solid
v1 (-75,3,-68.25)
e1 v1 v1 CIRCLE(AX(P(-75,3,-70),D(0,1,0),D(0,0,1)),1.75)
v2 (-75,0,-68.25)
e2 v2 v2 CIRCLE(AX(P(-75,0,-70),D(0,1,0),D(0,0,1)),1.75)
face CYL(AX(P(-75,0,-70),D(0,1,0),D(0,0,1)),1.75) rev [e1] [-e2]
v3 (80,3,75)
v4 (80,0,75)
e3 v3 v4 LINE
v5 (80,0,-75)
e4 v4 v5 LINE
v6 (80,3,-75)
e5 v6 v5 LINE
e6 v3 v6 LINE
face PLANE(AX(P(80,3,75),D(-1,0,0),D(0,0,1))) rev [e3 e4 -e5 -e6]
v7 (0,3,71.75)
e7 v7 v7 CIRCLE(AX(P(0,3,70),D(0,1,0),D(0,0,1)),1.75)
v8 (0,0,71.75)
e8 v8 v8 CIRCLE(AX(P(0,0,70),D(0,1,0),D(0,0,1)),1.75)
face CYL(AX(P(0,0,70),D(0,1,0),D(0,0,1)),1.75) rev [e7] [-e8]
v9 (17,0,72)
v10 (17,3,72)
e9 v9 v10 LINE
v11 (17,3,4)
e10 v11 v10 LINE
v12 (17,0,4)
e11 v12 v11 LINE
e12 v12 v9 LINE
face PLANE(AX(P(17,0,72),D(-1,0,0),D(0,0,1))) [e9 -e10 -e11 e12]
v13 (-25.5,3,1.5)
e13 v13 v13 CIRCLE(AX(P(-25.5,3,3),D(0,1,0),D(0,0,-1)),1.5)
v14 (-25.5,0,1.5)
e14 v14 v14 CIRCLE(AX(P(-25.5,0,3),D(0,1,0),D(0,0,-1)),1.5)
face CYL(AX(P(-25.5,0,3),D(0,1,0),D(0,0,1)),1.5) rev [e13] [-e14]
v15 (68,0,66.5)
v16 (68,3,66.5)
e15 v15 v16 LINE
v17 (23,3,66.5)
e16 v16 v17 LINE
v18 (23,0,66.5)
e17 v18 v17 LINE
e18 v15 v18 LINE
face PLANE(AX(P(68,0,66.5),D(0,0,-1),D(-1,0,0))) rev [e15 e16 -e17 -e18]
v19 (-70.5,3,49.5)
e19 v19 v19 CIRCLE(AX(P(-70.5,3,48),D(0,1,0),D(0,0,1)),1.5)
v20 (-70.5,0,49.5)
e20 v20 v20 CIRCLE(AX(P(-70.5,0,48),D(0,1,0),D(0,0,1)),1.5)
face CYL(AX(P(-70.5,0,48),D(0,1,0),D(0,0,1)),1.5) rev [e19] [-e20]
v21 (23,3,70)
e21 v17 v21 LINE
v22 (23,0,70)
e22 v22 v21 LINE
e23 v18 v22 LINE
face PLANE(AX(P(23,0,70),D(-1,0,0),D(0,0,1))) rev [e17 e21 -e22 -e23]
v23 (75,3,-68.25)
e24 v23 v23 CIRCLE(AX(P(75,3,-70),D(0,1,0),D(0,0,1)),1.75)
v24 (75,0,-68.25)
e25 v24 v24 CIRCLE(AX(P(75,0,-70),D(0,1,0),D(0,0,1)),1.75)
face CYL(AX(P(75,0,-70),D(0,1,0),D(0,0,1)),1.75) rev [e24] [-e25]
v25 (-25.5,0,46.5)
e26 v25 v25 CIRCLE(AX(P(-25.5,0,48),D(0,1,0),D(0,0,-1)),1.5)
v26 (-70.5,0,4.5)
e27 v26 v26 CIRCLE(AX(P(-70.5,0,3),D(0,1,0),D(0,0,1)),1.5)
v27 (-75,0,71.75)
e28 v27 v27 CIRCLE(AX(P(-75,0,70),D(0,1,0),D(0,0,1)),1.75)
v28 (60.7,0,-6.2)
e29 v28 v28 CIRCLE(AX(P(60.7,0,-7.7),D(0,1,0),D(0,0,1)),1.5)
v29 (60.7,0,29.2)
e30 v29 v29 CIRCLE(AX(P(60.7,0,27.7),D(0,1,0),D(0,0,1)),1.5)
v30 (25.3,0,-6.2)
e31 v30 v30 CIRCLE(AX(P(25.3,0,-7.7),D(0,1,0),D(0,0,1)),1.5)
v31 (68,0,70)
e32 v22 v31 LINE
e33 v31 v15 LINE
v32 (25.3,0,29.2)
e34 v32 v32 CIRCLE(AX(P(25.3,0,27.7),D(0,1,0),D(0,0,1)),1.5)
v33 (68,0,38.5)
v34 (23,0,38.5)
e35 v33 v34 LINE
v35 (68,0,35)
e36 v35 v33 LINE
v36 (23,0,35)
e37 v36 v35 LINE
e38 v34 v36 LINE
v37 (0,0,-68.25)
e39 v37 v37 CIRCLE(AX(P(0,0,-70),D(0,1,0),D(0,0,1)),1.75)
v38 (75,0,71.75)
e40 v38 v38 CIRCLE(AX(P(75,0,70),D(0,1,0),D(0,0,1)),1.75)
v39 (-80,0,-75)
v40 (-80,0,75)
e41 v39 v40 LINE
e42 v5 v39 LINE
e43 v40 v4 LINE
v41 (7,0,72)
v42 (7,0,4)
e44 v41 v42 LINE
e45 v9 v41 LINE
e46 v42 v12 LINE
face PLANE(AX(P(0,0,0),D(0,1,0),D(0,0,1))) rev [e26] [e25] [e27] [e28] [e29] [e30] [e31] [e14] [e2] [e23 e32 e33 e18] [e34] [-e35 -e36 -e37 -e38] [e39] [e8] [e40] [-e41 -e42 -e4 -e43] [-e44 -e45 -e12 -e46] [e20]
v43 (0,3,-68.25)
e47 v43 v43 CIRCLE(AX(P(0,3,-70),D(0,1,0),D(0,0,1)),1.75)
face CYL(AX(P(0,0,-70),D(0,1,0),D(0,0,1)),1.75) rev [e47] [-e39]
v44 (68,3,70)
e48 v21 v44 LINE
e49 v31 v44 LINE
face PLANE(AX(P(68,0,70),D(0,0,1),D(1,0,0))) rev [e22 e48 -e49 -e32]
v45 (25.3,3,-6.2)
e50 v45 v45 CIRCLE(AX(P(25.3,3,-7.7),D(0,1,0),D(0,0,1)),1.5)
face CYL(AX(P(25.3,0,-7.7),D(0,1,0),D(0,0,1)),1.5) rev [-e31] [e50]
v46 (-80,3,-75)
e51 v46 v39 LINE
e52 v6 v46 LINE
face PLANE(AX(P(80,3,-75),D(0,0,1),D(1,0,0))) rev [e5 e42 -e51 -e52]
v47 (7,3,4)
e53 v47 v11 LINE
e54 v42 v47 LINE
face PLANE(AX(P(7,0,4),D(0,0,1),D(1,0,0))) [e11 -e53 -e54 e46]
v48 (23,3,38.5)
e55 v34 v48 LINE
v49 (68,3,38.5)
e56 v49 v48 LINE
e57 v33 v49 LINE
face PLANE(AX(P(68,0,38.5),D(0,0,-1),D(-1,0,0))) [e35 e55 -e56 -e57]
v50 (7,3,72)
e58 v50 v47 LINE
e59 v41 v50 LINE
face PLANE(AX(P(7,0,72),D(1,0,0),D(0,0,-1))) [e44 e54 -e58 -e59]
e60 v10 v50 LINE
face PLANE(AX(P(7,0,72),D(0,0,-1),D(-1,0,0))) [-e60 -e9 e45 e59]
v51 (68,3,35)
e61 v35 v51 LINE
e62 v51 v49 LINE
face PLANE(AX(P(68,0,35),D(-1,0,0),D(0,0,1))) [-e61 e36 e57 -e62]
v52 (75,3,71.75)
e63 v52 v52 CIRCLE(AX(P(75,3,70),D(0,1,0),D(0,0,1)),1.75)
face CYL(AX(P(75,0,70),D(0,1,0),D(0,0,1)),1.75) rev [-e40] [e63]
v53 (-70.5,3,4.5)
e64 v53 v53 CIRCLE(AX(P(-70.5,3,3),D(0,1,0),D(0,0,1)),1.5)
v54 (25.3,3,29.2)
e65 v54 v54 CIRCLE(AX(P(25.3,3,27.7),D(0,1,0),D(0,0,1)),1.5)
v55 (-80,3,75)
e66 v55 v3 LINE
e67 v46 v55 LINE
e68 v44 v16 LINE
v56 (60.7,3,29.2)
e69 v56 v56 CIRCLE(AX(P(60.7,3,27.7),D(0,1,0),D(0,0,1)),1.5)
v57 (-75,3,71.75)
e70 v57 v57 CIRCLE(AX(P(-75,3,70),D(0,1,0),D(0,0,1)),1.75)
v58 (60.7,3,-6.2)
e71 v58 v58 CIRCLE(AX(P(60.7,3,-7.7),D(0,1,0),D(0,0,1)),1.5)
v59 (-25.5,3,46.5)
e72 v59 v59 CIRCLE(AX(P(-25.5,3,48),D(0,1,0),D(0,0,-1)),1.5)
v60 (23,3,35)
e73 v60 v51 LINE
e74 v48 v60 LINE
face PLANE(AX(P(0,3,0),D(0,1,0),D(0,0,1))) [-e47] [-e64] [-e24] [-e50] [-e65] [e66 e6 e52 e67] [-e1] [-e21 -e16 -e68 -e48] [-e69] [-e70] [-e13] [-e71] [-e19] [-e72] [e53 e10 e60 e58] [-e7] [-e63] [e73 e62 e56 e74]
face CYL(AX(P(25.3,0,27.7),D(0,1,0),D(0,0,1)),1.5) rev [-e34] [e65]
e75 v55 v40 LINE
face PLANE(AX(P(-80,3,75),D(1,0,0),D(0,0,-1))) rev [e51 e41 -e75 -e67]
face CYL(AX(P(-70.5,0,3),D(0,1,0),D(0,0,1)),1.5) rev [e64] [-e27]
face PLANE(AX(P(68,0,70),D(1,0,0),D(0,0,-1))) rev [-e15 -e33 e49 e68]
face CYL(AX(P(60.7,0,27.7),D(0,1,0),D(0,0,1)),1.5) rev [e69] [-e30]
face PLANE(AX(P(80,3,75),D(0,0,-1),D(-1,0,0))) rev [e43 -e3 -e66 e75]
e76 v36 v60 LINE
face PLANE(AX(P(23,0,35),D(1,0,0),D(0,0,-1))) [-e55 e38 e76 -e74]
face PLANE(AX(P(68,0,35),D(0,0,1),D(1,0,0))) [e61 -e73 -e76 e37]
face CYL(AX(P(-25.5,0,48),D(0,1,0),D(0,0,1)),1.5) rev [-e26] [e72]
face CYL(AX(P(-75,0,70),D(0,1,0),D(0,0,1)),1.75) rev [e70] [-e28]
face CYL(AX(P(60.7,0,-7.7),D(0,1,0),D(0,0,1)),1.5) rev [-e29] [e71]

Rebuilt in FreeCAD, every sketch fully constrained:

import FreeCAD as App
import Part
import Sketcher
from FreeCAD import Vector
Q = App.Units.Quantity


def add_polygon(sketch, points):
    """Adds a closed chain of lines whose ends are joined by coincident constraints."""
    first, n = sketch.GeometryCount, len(points)
    for a, b in zip(points, points[1:] + points[:1]):
        sketch.addGeometry(Part.LineSegment(App.Vector(*a, 0), App.Vector(*b, 0)), False)
    for i in range(n):
        sketch.addConstraint(Sketcher.Constraint("Coincident", first + i, 2, first + (i + 1) % n, 1))

doc = App.newDocument("Part")
body = doc.addObject("PartDesign::Body", "Body")

sketch1 = body.newObject("Sketcher::SketchObject", "Sketch")
sketch1.AttachmentSupport = (doc.getObject("XZ_Plane"), [""])
sketch1.MapMode = "FlatFace"
add_polygon(sketch1, [(-80, -75), (-80, 75), (80, 75), (80, -75)])
sketch1.addConstraint(Sketcher.Constraint("Vertical", 0))
sketch1.addConstraint(Sketcher.Constraint("Horizontal", 1))
sketch1.addConstraint(Sketcher.Constraint("Vertical", 2))
sketch1.addConstraint(Sketcher.Constraint("Horizontal", 3))
sketch1.addConstraint(Sketcher.Constraint("Symmetric", 0, 2, 2, 2, -1, 1))
sketch1.addConstraint(Sketcher.Constraint("DistanceX", 1, 1, 1, 2, Q("160 mm")))
sketch1.addConstraint(Sketcher.Constraint("DistanceY", 0, 1, 0, 2, Q("150 mm")))
pad1 = body.newObject("PartDesign::Pad", "Pad")
pad1.Profile = sketch1
pad1.Length = 3
pad1.Reversed = True

sketch2 = body.newObject("Sketcher::SketchObject", "Sketch001")
sketch2.AttachmentSupport = (doc.getObject("XZ_Plane"), [""])
sketch2.MapMode = "FlatFace"
sketch2.AttachmentOffset = App.Placement(Vector(0, 0, -3), App.Rotation())
add_polygon(sketch2, [(-63, 4), (-63, 72), (-53, 72), (-53, 4)])
sketch2.addConstraint(Sketcher.Constraint("Vertical", 0))
sketch2.addConstraint(Sketcher.Constraint("Horizontal", 1))
sketch2.addConstraint(Sketcher.Constraint("Vertical", 2))
sketch2.addConstraint(Sketcher.Constraint("Horizontal", 3))
sketch2.addConstraint(Sketcher.Constraint("DistanceX", 1, 1, 1, 2, Q("10 mm")))
sketch2.addConstraint(Sketcher.Constraint("DistanceY", 0, 1, 0, 2, Q("68 mm")))
sketch2.addConstraint(Sketcher.Constraint("DistanceX", 0, 2, -1, 1, Q("63 mm")))
sketch2.addConstraint(Sketcher.Constraint("DistanceY", -1, 1, 0, 2, Q("72 mm")))
pocket1 = body.newObject("PartDesign::Pocket", "Pocket")
pocket1.Profile = sketch2
pocket1.Type = "ThroughAll"
pocket1.Reversed = True
doc.recompute()

datumplane = body.newObject("PartDesign::Plane", "DatumPlane")
datumplane.AttachmentSupport = (doc.getObject("YZ_Plane"), [""])
datumplane.MapMode = "FlatFace"
datumplane.AttachmentOffset = App.Placement(Vector(0, 0, -23), App.Rotation())
mirrored = body.newObject("PartDesign::Mirrored", "Mirrored")
mirrored.Originals = [pocket1]
mirrored.MirrorPlane = (datumplane, [""])
body.Tip = mirrored

sketch3 = body.newObject("Sketcher::SketchObject", "Sketch002")
sketch3.AttachmentSupport = (doc.getObject("XZ_Plane"), [""])
sketch3.MapMode = "FlatFace"
sketch3.AttachmentOffset = App.Placement(Vector(0, 0, -3), App.Rotation())
add_polygon(sketch3, [(23, 66.5), (23, 70), (68, 70), (68, 66.5)])
sketch3.addConstraint(Sketcher.Constraint("Vertical", 0))
sketch3.addConstraint(Sketcher.Constraint("Horizontal", 1))
sketch3.addConstraint(Sketcher.Constraint("Vertical", 2))
sketch3.addConstraint(Sketcher.Constraint("Horizontal", 3))
sketch3.addConstraint(Sketcher.Constraint("DistanceX", 1, 1, 1, 2, Q("45 mm")))
sketch3.addConstraint(Sketcher.Constraint("DistanceY", 0, 1, 0, 2, Q("3.5 mm")))
sketch3.addConstraint(Sketcher.Constraint("DistanceX", -1, 1, 0, 2, Q("23 mm")))
sketch3.addConstraint(Sketcher.Constraint("DistanceY", -1, 1, 0, 2, Q("70 mm")))
pocket2 = body.newObject("PartDesign::Pocket", "Pocket001")
pocket2.Profile = sketch3
pocket2.Type = "ThroughAll"
pocket2.Reversed = True
doc.recompute()

datumplane2 = body.newObject("PartDesign::Plane", "DatumPlane001")
datumplane2.AttachmentSupport = (doc.getObject("XY_Plane"), [""])
datumplane2.MapMode = "FlatFace"
datumplane2.AttachmentOffset = App.Placement(Vector(0, 0, 52.5), App.Rotation())
mirrored2 = body.newObject("PartDesign::Mirrored", "Mirrored001")
mirrored2.Originals = [pocket2]
mirrored2.MirrorPlane = (datumplane2, [""])
body.Tip = mirrored2

sketch4 = body.newObject("Sketcher::SketchObject", "Sketch003")
sketch4.AttachmentSupport = (doc.getObject("XZ_Plane"), [""])
sketch4.MapMode = "FlatFace"
sketch4.AttachmentOffset = App.Placement(Vector(0, 0, -3), App.Rotation())
sketch4.addGeometry(Part.Circle(Vector(-70.5, 3, 0), Vector(0, 0, 1), 1.5), False)
sketch4.addGeometry(Part.Circle(Vector(-70.5, 48, 0), Vector(0, 0, 1), 1.5), False)
sketch4.addGeometry(Part.Circle(Vector(-25.5, 48, 0), Vector(0, 0, 1), 1.5), False)
sketch4.addGeometry(Part.Circle(Vector(-25.5, 3, 0), Vector(0, 0, 1), 1.5), False)
sketch4.addConstraint(Sketcher.Constraint("Equal", 0, 1))
sketch4.addConstraint(Sketcher.Constraint("Equal", 1, 2))
sketch4.addConstraint(Sketcher.Constraint("Equal", 2, 3))
sketch4.addConstraint(Sketcher.Constraint("Horizontal", 1, 3, 2, 3))
sketch4.addConstraint(Sketcher.Constraint("Horizontal", 0, 3, 3, 3))
sketch4.addConstraint(Sketcher.Constraint("Vertical", 0, 3, 1, 3))
sketch4.addConstraint(Sketcher.Constraint("Vertical", 2, 3, 3, 3))
sketch4.addConstraint(Sketcher.Constraint("Diameter", 0, Q("3 mm")))
sketch4.addConstraint(Sketcher.Constraint("DistanceY", -1, 1, 0, 3, Q("3 mm")))
sketch4.addConstraint(Sketcher.Constraint("DistanceY", -1, 1, 1, 3, Q("48 mm")))
sketch4.addConstraint(Sketcher.Constraint("DistanceX", 1, 3, 2, 3, Q("45 mm")))
sketch4.addConstraint(Sketcher.Constraint("DistanceX", 0, 3, -1, 1, Q("70.5 mm")))
pocket3 = body.newObject("PartDesign::Pocket", "Pocket002")
pocket3.Profile = sketch4
pocket3.Type = "ThroughAll"
pocket3.Reversed = True

sketch5 = body.newObject("Sketcher::SketchObject", "Sketch004")
sketch5.AttachmentSupport = (doc.getObject("XZ_Plane"), [""])
sketch5.MapMode = "FlatFace"
sketch5.AttachmentOffset = App.Placement(Vector(0, 0, -3), App.Rotation())
sketch5.addGeometry(Part.Circle(Vector(60.7, 27.7, 0), Vector(0, 0, 1), 1.5), False)
sketch5.addGeometry(Part.Circle(Vector(25.3, 27.7, 0), Vector(0, 0, 1), 1.5), False)
sketch5.addGeometry(Part.Circle(Vector(25.3, -7.7, 0), Vector(0, 0, 1), 1.5), False)
sketch5.addGeometry(Part.Circle(Vector(60.7, -7.7, 0), Vector(0, 0, 1), 1.5), False)
sketch5.addConstraint(Sketcher.Constraint("Equal", 0, 1))
sketch5.addConstraint(Sketcher.Constraint("Equal", 1, 2))
sketch5.addConstraint(Sketcher.Constraint("Equal", 2, 3))
sketch5.addConstraint(Sketcher.Constraint("Horizontal", 0, 3, 1, 3))
sketch5.addConstraint(Sketcher.Constraint("Horizontal", 2, 3, 3, 3))
sketch5.addConstraint(Sketcher.Constraint("Vertical", 1, 3, 2, 3))
sketch5.addConstraint(Sketcher.Constraint("Vertical", 0, 3, 3, 3))
sketch5.addConstraint(Sketcher.Constraint("Diameter", 0, Q("3 mm")))
sketch5.addConstraint(Sketcher.Constraint("DistanceX", -1, 1, 0, 3, Q("60.7 mm")))
sketch5.addConstraint(Sketcher.Constraint("DistanceY", -1, 1, 0, 3, Q("27.7 mm")))
sketch5.addConstraint(Sketcher.Constraint("DistanceX", -1, 1, 1, 3, Q("25.3 mm")))
sketch5.addConstraint(Sketcher.Constraint("DistanceY", 2, 3, -1, 1, Q("7.7 mm")))
pocket4 = body.newObject("PartDesign::Pocket", "Pocket003")
pocket4.Profile = sketch5
pocket4.Type = "ThroughAll"
pocket4.Reversed = True

sketch6 = body.newObject("Sketcher::SketchObject", "Sketch005")
sketch6.AttachmentSupport = (doc.getObject("XZ_Plane"), [""])
sketch6.MapMode = "FlatFace"
sketch6.AttachmentOffset = App.Placement(Vector(0, 0, -3), App.Rotation())
sketch6.addGeometry(Part.Circle(Vector(-75, -70, 0), Vector(0, 0, 1), 1.8), False)
sketch6.addGeometry(Part.Circle(Vector(75, -70, 0), Vector(0, 0, 1), 1.8), False)
sketch6.addGeometry(Part.Circle(Vector(0, -70, 0), Vector(0, 0, 1), 1.8), False)
sketch6.addGeometry(Part.Circle(Vector(-75, 70, 0), Vector(0, 0, 1), 1.8), False)
sketch6.addGeometry(Part.Circle(Vector(0, 70, 0), Vector(0, 0, 1), 1.8), False)
sketch6.addGeometry(Part.Circle(Vector(75, 70, 0), Vector(0, 0, 1), 1.8), False)
sketch6.addConstraint(Sketcher.Constraint("Equal", 0, 1))
sketch6.addConstraint(Sketcher.Constraint("Equal", 1, 2))
sketch6.addConstraint(Sketcher.Constraint("Equal", 2, 3))
sketch6.addConstraint(Sketcher.Constraint("Equal", 3, 4))
sketch6.addConstraint(Sketcher.Constraint("Equal", 4, 5))
sketch6.addConstraint(Sketcher.Constraint("Symmetric", 1, 3, 3, 3, -1, 1))
sketch6.addConstraint(Sketcher.Constraint("Symmetric", 2, 3, 4, 3, -1, 1))
sketch6.addConstraint(Sketcher.Constraint("Symmetric", 0, 3, 5, 3, -1, 1))
sketch6.addConstraint(Sketcher.Constraint("Symmetric", 0, 3, 1, 3, -2))
sketch6.addConstraint(Sketcher.Constraint("PointOnObject", 2, 3, -2))
sketch6.addConstraint(Sketcher.Constraint("Horizontal", 1, 3, 2, 3))
sketch6.addConstraint(Sketcher.Constraint("Diameter", 0, Q("3.5 mm")))
sketch6.addConstraint(Sketcher.Constraint("DistanceX", 0, 3, -1, 1, Q("75 mm")))
sketch6.addConstraint(Sketcher.Constraint("DistanceY", 0, 3, -1, 1, Q("70 mm")))
pocket5 = body.newObject("PartDesign::Pocket", "Pocket004")
pocket5.Profile = sketch6
pocket5.Type = "ThroughAll"
pocket5.Reversed = True

sketch7 = body.newObject("Sketcher::SketchObject", "Sketch006")
sketch7.AttachmentSupport = (doc.getObject("XZ_Plane"), [""])
sketch7.MapMode = "FlatFace"
sketch7.AttachmentOffset = App.Placement(Vector(0, 0, -3), App.Rotation())
add_polygon(sketch7, [(-63, 4), (-63, 72), (-53, 72), (-53, 4)])
sketch7.addConstraint(Sketcher.Constraint("Vertical", 0))
sketch7.addConstraint(Sketcher.Constraint("Horizontal", 1))
sketch7.addConstraint(Sketcher.Constraint("Vertical", 2))
sketch7.addConstraint(Sketcher.Constraint("Horizontal", 3))
sketch7.addConstraint(Sketcher.Constraint("DistanceX", 1, 1, 1, 2, Q("10 mm")))
sketch7.addConstraint(Sketcher.Constraint("DistanceY", 0, 1, 0, 2, Q("68 mm")))
sketch7.addConstraint(Sketcher.Constraint("DistanceX", 0, 2, -1, 1, Q("63 mm")))
sketch7.addConstraint(Sketcher.Constraint("DistanceY", -1, 1, 0, 2, Q("72 mm")))
pad2 = body.newObject("PartDesign::Pad", "Pad001")
pad2.Profile = sketch7
pad2.Length = 3

doc.recompute()
